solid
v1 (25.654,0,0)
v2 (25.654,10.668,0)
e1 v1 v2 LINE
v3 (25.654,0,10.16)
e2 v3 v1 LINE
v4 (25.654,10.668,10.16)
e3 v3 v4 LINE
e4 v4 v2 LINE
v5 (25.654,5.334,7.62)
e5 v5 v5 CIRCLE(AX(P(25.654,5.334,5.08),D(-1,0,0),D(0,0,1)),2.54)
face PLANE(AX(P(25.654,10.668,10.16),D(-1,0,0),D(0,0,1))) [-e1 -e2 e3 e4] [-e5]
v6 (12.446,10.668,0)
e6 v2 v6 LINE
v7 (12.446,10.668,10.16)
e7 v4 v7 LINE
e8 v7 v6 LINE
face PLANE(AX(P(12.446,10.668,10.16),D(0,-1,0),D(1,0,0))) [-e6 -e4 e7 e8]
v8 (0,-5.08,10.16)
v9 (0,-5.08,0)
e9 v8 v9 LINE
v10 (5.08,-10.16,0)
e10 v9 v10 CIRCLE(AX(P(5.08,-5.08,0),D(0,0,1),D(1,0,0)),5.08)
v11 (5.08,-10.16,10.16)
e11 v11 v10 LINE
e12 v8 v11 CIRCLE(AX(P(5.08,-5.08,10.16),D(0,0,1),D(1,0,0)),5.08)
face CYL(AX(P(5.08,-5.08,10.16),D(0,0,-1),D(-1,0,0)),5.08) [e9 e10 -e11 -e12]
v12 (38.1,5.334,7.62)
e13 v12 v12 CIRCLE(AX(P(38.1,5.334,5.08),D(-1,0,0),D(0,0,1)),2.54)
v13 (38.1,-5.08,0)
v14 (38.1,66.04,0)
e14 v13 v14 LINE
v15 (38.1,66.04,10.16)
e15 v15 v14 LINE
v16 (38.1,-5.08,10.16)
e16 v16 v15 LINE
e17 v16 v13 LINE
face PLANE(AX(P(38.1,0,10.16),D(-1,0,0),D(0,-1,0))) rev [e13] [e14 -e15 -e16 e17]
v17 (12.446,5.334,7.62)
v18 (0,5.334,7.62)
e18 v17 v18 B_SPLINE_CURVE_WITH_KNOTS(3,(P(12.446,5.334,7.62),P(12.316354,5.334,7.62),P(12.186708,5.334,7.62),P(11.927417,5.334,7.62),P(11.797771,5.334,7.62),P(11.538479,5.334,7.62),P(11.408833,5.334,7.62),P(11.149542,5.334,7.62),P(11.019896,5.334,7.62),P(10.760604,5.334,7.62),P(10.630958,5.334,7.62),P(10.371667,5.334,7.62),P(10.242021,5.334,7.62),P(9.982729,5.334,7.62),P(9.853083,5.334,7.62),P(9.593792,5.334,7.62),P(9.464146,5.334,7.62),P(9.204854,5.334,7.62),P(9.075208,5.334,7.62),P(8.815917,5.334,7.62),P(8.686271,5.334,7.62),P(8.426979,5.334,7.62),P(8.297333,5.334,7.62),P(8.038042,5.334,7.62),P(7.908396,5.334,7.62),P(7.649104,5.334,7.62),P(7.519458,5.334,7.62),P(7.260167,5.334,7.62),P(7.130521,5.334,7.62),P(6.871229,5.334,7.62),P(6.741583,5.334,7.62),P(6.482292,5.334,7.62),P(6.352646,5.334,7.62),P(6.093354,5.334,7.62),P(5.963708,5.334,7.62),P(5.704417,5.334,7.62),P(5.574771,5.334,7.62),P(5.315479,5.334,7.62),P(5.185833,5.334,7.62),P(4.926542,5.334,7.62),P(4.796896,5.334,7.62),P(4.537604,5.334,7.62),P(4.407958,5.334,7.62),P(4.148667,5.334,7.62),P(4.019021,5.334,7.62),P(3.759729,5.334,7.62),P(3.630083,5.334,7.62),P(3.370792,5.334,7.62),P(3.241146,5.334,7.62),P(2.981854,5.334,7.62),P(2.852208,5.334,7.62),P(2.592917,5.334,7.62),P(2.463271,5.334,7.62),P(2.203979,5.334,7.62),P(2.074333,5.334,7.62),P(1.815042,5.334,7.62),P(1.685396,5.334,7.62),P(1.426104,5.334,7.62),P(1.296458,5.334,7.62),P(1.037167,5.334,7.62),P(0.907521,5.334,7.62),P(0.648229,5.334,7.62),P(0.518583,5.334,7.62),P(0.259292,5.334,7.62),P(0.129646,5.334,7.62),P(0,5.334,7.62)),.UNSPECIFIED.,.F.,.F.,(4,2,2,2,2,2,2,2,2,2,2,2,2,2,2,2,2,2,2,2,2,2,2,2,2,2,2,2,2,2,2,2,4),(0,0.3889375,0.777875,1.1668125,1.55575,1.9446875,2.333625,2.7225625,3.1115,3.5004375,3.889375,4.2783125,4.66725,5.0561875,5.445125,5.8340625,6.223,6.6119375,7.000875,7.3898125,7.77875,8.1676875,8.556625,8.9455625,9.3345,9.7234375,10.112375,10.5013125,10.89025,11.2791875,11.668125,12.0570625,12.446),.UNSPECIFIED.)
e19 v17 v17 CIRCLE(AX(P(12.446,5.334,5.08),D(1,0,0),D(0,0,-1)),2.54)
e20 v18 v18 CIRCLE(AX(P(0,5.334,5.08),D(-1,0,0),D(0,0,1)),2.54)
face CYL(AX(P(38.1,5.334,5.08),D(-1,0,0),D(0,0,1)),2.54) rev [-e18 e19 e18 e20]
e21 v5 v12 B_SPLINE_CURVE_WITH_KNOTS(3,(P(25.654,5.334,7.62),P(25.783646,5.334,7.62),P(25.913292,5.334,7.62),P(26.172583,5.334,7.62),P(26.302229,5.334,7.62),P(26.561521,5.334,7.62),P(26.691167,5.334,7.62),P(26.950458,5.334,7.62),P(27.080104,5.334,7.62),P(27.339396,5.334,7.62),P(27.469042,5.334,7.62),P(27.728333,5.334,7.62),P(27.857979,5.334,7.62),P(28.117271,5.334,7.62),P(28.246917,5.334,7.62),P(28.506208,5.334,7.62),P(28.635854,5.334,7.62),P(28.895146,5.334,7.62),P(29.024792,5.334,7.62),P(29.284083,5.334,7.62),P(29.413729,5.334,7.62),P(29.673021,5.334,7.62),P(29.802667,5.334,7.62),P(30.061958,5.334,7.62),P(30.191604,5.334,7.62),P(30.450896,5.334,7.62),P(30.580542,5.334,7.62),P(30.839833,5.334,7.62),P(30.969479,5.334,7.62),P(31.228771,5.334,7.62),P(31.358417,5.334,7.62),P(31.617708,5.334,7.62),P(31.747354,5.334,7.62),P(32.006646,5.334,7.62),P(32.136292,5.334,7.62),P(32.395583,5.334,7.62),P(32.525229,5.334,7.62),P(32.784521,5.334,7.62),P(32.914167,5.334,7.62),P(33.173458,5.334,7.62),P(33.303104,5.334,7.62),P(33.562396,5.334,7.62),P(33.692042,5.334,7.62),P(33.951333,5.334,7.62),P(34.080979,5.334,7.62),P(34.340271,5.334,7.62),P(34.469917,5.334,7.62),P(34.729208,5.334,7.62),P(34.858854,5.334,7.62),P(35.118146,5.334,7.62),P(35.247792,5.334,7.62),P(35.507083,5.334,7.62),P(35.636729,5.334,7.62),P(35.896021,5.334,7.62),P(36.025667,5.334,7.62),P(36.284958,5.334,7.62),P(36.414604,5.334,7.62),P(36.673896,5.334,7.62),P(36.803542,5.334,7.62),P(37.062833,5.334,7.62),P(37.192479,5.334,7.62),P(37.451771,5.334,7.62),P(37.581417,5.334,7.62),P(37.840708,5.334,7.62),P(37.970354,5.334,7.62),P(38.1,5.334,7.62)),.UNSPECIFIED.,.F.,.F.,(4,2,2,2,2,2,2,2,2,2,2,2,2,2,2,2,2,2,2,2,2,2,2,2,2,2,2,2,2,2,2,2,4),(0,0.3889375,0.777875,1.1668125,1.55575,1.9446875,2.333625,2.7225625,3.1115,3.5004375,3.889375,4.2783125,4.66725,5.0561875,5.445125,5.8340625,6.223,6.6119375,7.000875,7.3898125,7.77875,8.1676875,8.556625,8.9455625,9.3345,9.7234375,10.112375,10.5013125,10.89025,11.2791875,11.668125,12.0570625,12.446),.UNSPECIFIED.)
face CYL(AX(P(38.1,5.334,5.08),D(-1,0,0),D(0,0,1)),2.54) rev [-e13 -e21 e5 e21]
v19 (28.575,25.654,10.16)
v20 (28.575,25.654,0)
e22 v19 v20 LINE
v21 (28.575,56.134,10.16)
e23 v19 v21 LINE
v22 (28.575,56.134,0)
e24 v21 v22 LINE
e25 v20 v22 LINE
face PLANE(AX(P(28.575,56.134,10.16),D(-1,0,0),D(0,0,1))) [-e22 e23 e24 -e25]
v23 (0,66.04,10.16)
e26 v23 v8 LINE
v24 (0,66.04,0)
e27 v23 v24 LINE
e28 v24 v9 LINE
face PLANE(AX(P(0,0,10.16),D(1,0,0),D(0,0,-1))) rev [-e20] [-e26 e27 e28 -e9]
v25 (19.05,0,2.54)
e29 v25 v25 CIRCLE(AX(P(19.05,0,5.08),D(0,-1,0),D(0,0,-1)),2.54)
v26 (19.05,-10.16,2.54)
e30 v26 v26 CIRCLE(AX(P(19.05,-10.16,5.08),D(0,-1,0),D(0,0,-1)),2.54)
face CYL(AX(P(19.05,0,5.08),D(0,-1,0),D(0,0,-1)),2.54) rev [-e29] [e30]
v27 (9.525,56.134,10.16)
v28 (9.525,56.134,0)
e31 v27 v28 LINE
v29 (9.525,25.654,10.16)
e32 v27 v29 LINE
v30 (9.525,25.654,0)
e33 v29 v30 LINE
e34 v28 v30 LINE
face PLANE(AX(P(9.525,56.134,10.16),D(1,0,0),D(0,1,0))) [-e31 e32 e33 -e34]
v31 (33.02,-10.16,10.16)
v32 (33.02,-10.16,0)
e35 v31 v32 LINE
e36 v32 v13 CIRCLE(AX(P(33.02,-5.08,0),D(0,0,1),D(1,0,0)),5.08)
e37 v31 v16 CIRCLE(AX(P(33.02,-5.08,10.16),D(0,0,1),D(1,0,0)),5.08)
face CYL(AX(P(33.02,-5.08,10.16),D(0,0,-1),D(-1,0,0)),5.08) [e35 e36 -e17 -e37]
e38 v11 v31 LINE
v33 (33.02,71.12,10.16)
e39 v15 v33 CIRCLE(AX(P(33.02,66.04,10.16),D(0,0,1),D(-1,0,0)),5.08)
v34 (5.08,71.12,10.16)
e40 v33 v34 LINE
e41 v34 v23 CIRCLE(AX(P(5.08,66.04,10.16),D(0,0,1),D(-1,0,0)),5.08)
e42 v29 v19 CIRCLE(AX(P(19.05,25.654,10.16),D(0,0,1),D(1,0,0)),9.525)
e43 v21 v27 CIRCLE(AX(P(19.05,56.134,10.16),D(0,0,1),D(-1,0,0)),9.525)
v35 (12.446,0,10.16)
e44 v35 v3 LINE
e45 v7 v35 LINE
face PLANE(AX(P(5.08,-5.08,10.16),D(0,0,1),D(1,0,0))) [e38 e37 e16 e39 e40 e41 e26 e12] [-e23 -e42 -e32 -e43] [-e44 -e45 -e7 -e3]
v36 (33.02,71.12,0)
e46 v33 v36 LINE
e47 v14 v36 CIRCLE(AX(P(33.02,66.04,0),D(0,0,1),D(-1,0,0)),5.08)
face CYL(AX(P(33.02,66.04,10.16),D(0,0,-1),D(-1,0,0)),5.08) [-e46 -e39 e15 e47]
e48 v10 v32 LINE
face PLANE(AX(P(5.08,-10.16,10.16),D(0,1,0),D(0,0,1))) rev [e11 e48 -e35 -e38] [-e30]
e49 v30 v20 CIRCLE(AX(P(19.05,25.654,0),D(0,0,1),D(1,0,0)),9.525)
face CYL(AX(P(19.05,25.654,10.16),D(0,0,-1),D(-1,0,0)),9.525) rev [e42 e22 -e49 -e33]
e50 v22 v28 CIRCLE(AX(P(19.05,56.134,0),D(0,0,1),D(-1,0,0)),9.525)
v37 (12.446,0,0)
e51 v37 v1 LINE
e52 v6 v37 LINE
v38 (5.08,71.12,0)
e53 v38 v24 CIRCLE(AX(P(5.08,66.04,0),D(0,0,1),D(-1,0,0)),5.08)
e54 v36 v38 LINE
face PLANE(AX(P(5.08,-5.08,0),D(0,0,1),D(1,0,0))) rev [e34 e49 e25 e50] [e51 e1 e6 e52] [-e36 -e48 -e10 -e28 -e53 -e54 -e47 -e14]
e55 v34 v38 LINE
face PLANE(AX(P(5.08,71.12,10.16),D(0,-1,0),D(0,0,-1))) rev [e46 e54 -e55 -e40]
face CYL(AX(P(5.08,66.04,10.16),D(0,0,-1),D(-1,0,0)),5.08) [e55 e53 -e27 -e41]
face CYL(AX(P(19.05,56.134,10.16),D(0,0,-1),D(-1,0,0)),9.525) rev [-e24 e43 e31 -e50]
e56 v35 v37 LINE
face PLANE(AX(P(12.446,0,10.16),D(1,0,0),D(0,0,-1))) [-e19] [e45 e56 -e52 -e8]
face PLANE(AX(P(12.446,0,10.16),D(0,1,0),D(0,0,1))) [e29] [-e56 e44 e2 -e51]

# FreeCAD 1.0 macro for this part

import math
import FreeCAD as App
import Part
import Sketcher
from FreeCAD import Vector
Q = App.Units.Quantity

doc = App.newDocument("Part")
params = doc.addObject("Spreadsheet::Sheet", "Params")
for row, (alias, value) in enumerate([
    ("sketch1_radius", "0.2 in"),
    ("sketch1_width", "1.1 in"),
    ("sketch1_height", "2.8 in"),
    ("sketch1_height2", "1.2 in"),
    ("sketch1_radius2", "0.375 in"),
    ("pad1_length", "0.4 in"),
    ("sketch2_diameter", "0.2 in"),
    ("pocket1_length", "1.5 in"),
    ("sketch3_diameter", "0.2 in"),
    ("pocket2_length", "0.4 in"),
], start=1):
    params.set(f"A{row}", alias)
    params.set(f"B{row}", "=" + value)
    params.setAlias(f"B{row}", alias)

body = doc.addObject("PartDesign::Body", "Body")

sketch1 = body.newObject("Sketcher::SketchObject", "Sketch")
sketch1.AttachmentSupport = (doc.getObject("XY_Plane"), [""])
sketch1.MapMode = "FlatFace"
sketch1.addGeometry(Part.ArcOfCircle(Part.Circle(Vector(5.08, 66.04, 0), Vector(0, 0, 1), 5.08), math.radians(90), math.radians(180)), False)
sketch1.addGeometry(Part.LineSegment(Vector(0, 66.04, 0), Vector(0, -5.08, 0)), False)
sketch1.addGeometry(Part.ArcOfCircle(Part.Circle(Vector(5.08, -5.08, 0), Vector(0, 0, 1), 5.08), math.radians(-180), math.radians(-90)), False)
sketch1.addGeometry(Part.LineSegment(Vector(5.08, -10.16, 0), Vector(33.02, -10.16, 0)), False)
sketch1.addGeometry(Part.ArcOfCircle(Part.Circle(Vector(33.02, -5.08, 0), Vector(0, 0, 1), 5.08), math.radians(-90), math.radians(0)), False)
sketch1.addGeometry(Part.LineSegment(Vector(38.1, -5.08, 0), Vector(38.1, 66.04, 0)), False)
sketch1.addGeometry(Part.ArcOfCircle(Part.Circle(Vector(33.02, 66.04, 0), Vector(0, 0, 1), 5.08), math.radians(0), math.radians(90)), False)
sketch1.addGeometry(Part.LineSegment(Vector(33.02, 71.12, 0), Vector(5.08, 71.12, 0)), False)
sketch1.addGeometry(Part.LineSegment(Vector(12.446, 0, 0), Vector(12.446, 10.668, 0)), False)
sketch1.addGeometry(Part.LineSegment(Vector(12.446, 10.668, 0), Vector(25.654, 10.668, 0)), False)
sketch1.addGeometry(Part.LineSegment(Vector(25.654, 10.668, 0), Vector(25.654, 0, 0)), False)
sketch1.addGeometry(Part.LineSegment(Vector(25.654, 0, 0), Vector(12.446, 0, 0)), False)
sketch1.addGeometry(Part.ArcOfCircle(Part.Circle(Vector(19.05, 56.134, 0), Vector(0, 0, 1), 9.525), math.radians(0), math.radians(180)), False)
sketch1.addGeometry(Part.LineSegment(Vector(28.575, 56.134, 0), Vector(28.575, 25.654, 0)), False)
sketch1.addGeometry(Part.ArcOfCircle(Part.Circle(Vector(19.05, 25.654, 0), Vector(0, 0, 1), 9.525), math.radians(180), math.radians(360)), False)
sketch1.addGeometry(Part.LineSegment(Vector(9.525, 25.654, 0), Vector(9.525, 56.134, 0)), False)
sketch1.addConstraint(Sketcher.Constraint("Tangent", 0, 2, 1, 1))
sketch1.addConstraint(Sketcher.Constraint("Tangent", 1, 2, 2, 1))
sketch1.addConstraint(Sketcher.Constraint("Tangent", 2, 2, 3, 1))
sketch1.addConstraint(Sketcher.Constraint("Tangent", 3, 2, 4, 1))
sketch1.addConstraint(Sketcher.Constraint("Tangent", 4, 2, 5, 1))
sketch1.addConstraint(Sketcher.Constraint("Tangent", 5, 2, 6, 1))
sketch1.addConstraint(Sketcher.Constraint("Tangent", 6, 2, 7, 1))
sketch1.addConstraint(Sketcher.Constraint("Tangent", 7, 2, 0, 1))
sketch1.addConstraint(Sketcher.Constraint("Coincident", 8, 2, 9, 1))
sketch1.addConstraint(Sketcher.Constraint("Coincident", 9, 2, 10, 1))
sketch1.addConstraint(Sketcher.Constraint("Coincident", 10, 2, 11, 1))
sketch1.addConstraint(Sketcher.Constraint("Coincident", 11, 2, 8, 1))
sketch1.addConstraint(Sketcher.Constraint("Tangent", 12, 1, 13, 1))
sketch1.addConstraint(Sketcher.Constraint("Tangent", 13, 2, 14, 2))
sketch1.addConstraint(Sketcher.Constraint("Tangent", 14, 1, 15, 1))
sketch1.addConstraint(Sketcher.Constraint("Tangent", 15, 2, 12, 2))
sketch1.addConstraint(Sketcher.Constraint("Vertical", 1))
sketch1.addConstraint(Sketcher.Constraint("Horizontal", 3))
sketch1.addConstraint(Sketcher.Constraint("Vertical", 5))
sketch1.addConstraint(Sketcher.Constraint("Horizontal", 7))
sketch1.addConstraint(Sketcher.Constraint("Vertical", 8))
sketch1.addConstraint(Sketcher.Constraint("Horizontal", 9))
sketch1.addConstraint(Sketcher.Constraint("Vertical", 10))
sketch1.addConstraint(Sketcher.Constraint("Horizontal", 11))
sketch1.addConstraint(Sketcher.Constraint("Vertical", 13))
sketch1.addConstraint(Sketcher.Constraint("Vertical", 15))
sketch1.addConstraint(Sketcher.Constraint("Equal", 0, 2))
sketch1.addConstraint(Sketcher.Constraint("Equal", 2, 4))
sketch1.addConstraint(Sketcher.Constraint("Equal", 4, 6))
sketch1.addConstraint(Sketcher.Constraint("PointOnObject", 0, 2, -2))
sketch1.addConstraint(Sketcher.Constraint("PointOnObject", 10, 2, -1))
sketch1.addConstraint(Sketcher.Constraint("Radius", 0, Q("0.2 in")))
sketch1.addConstraint(Sketcher.Constraint("DistanceX", 3, 1, 3, 2, Q("1.1 in")))
sketch1.addConstraint(Sketcher.Constraint("DistanceY", 1, 2, 1, 1, Q("2.8 in")))
sketch1.addConstraint(Sketcher.Constraint("DistanceY", 13, 2, 13, 1, Q("1.2 in")))
sketch1.addConstraint(Sketcher.Constraint("Radius", 12, Q("0.375 in")))
sketch1.addConstraint(Sketcher.Constraint("DistanceX", 9, 1, 9, 2, Q("0.52 in")))
sketch1.addConstraint(Sketcher.Constraint("DistanceY", 8, 1, 8, 2, Q("0.42 in")))
sketch1.addConstraint(Sketcher.Constraint("DistanceY", -1, 1, 0, 3, Q("2.6 in")))
sketch1.addConstraint(Sketcher.Constraint("DistanceX", -1, 1, 12, 3, Q("0.75 in")))
sketch1.addConstraint(Sketcher.Constraint("DistanceY", -1, 1, 12, 3, Q("2.21 in")))
sketch1.addConstraint(Sketcher.Constraint("DistanceX", -1, 1, 8, 2, Q("0.49 in")))
sketch1.setExpression("Constraints[31]", "Params.sketch1_radius")
sketch1.setExpression("Constraints[32]", "Params.sketch1_width")
sketch1.setExpression("Constraints[33]", "Params.sketch1_height")
sketch1.setExpression("Constraints[34]", "Params.sketch1_height2")
sketch1.setExpression("Constraints[35]", "Params.sketch1_radius2")
pad1 = body.newObject("PartDesign::Pad", "Pad")
pad1.Profile = sketch1
pad1.setExpression("Length", "Params.pad1_length")

sketch2 = body.newObject("Sketcher::SketchObject", "Sketch001")
sketch2.AttachmentSupport = (doc.getObject("YZ_Plane"), [""])
sketch2.MapMode = "FlatFace"
sketch2.addGeometry(Part.Circle(Vector(5.334, 5.08, 0), Vector(0, 0, 1), 2.54), False)
sketch2.addConstraint(Sketcher.Constraint("Diameter", 0, Q("0.2 in")))
sketch2.addConstraint(Sketcher.Constraint("DistanceY", -1, 1, 0, 3, Q("0.2 in")))
sketch2.addConstraint(Sketcher.Constraint("DistanceX", -1, 1, 0, 3, Q("0.21 in")))
sketch2.setExpression("Constraints[0]", "Params.sketch2_diameter")
pocket1 = body.newObject("PartDesign::Pocket", "Pocket")
pocket1.Profile = sketch2
pocket1.setExpression("Length", "Params.pocket1_length")
pocket1.Reversed = True

sketch3 = body.newObject("Sketcher::SketchObject", "Sketch002")
sketch3.AttachmentSupport = (doc.getObject("XZ_Plane"), [""])
sketch3.MapMode = "FlatFace"
sketch3.AttachmentOffset = App.Placement(Vector(0, 0, 0.4 * 25.4), App.Rotation())
sketch3.addGeometry(Part.Circle(Vector(19.05, 5.08, 0), Vector(0, 0, 1), 2.54), False)
sketch3.addConstraint(Sketcher.Constraint("Diameter", 0, Q("0.2 in")))
sketch3.addConstraint(Sketcher.Constraint("DistanceY", -1, 1, 0, 3, Q("0.2 in")))
sketch3.addConstraint(Sketcher.Constraint("DistanceX", -1, 1, 0, 3, Q("0.75 in")))
sketch3.setExpression("Constraints[0]", "Params.sketch3_diameter")
pocket2 = body.newObject("PartDesign::Pocket", "Pocket001")
pocket2.Profile = sketch3
pocket2.setExpression("Length", "Params.pocket2_length")

doc.recompute()
